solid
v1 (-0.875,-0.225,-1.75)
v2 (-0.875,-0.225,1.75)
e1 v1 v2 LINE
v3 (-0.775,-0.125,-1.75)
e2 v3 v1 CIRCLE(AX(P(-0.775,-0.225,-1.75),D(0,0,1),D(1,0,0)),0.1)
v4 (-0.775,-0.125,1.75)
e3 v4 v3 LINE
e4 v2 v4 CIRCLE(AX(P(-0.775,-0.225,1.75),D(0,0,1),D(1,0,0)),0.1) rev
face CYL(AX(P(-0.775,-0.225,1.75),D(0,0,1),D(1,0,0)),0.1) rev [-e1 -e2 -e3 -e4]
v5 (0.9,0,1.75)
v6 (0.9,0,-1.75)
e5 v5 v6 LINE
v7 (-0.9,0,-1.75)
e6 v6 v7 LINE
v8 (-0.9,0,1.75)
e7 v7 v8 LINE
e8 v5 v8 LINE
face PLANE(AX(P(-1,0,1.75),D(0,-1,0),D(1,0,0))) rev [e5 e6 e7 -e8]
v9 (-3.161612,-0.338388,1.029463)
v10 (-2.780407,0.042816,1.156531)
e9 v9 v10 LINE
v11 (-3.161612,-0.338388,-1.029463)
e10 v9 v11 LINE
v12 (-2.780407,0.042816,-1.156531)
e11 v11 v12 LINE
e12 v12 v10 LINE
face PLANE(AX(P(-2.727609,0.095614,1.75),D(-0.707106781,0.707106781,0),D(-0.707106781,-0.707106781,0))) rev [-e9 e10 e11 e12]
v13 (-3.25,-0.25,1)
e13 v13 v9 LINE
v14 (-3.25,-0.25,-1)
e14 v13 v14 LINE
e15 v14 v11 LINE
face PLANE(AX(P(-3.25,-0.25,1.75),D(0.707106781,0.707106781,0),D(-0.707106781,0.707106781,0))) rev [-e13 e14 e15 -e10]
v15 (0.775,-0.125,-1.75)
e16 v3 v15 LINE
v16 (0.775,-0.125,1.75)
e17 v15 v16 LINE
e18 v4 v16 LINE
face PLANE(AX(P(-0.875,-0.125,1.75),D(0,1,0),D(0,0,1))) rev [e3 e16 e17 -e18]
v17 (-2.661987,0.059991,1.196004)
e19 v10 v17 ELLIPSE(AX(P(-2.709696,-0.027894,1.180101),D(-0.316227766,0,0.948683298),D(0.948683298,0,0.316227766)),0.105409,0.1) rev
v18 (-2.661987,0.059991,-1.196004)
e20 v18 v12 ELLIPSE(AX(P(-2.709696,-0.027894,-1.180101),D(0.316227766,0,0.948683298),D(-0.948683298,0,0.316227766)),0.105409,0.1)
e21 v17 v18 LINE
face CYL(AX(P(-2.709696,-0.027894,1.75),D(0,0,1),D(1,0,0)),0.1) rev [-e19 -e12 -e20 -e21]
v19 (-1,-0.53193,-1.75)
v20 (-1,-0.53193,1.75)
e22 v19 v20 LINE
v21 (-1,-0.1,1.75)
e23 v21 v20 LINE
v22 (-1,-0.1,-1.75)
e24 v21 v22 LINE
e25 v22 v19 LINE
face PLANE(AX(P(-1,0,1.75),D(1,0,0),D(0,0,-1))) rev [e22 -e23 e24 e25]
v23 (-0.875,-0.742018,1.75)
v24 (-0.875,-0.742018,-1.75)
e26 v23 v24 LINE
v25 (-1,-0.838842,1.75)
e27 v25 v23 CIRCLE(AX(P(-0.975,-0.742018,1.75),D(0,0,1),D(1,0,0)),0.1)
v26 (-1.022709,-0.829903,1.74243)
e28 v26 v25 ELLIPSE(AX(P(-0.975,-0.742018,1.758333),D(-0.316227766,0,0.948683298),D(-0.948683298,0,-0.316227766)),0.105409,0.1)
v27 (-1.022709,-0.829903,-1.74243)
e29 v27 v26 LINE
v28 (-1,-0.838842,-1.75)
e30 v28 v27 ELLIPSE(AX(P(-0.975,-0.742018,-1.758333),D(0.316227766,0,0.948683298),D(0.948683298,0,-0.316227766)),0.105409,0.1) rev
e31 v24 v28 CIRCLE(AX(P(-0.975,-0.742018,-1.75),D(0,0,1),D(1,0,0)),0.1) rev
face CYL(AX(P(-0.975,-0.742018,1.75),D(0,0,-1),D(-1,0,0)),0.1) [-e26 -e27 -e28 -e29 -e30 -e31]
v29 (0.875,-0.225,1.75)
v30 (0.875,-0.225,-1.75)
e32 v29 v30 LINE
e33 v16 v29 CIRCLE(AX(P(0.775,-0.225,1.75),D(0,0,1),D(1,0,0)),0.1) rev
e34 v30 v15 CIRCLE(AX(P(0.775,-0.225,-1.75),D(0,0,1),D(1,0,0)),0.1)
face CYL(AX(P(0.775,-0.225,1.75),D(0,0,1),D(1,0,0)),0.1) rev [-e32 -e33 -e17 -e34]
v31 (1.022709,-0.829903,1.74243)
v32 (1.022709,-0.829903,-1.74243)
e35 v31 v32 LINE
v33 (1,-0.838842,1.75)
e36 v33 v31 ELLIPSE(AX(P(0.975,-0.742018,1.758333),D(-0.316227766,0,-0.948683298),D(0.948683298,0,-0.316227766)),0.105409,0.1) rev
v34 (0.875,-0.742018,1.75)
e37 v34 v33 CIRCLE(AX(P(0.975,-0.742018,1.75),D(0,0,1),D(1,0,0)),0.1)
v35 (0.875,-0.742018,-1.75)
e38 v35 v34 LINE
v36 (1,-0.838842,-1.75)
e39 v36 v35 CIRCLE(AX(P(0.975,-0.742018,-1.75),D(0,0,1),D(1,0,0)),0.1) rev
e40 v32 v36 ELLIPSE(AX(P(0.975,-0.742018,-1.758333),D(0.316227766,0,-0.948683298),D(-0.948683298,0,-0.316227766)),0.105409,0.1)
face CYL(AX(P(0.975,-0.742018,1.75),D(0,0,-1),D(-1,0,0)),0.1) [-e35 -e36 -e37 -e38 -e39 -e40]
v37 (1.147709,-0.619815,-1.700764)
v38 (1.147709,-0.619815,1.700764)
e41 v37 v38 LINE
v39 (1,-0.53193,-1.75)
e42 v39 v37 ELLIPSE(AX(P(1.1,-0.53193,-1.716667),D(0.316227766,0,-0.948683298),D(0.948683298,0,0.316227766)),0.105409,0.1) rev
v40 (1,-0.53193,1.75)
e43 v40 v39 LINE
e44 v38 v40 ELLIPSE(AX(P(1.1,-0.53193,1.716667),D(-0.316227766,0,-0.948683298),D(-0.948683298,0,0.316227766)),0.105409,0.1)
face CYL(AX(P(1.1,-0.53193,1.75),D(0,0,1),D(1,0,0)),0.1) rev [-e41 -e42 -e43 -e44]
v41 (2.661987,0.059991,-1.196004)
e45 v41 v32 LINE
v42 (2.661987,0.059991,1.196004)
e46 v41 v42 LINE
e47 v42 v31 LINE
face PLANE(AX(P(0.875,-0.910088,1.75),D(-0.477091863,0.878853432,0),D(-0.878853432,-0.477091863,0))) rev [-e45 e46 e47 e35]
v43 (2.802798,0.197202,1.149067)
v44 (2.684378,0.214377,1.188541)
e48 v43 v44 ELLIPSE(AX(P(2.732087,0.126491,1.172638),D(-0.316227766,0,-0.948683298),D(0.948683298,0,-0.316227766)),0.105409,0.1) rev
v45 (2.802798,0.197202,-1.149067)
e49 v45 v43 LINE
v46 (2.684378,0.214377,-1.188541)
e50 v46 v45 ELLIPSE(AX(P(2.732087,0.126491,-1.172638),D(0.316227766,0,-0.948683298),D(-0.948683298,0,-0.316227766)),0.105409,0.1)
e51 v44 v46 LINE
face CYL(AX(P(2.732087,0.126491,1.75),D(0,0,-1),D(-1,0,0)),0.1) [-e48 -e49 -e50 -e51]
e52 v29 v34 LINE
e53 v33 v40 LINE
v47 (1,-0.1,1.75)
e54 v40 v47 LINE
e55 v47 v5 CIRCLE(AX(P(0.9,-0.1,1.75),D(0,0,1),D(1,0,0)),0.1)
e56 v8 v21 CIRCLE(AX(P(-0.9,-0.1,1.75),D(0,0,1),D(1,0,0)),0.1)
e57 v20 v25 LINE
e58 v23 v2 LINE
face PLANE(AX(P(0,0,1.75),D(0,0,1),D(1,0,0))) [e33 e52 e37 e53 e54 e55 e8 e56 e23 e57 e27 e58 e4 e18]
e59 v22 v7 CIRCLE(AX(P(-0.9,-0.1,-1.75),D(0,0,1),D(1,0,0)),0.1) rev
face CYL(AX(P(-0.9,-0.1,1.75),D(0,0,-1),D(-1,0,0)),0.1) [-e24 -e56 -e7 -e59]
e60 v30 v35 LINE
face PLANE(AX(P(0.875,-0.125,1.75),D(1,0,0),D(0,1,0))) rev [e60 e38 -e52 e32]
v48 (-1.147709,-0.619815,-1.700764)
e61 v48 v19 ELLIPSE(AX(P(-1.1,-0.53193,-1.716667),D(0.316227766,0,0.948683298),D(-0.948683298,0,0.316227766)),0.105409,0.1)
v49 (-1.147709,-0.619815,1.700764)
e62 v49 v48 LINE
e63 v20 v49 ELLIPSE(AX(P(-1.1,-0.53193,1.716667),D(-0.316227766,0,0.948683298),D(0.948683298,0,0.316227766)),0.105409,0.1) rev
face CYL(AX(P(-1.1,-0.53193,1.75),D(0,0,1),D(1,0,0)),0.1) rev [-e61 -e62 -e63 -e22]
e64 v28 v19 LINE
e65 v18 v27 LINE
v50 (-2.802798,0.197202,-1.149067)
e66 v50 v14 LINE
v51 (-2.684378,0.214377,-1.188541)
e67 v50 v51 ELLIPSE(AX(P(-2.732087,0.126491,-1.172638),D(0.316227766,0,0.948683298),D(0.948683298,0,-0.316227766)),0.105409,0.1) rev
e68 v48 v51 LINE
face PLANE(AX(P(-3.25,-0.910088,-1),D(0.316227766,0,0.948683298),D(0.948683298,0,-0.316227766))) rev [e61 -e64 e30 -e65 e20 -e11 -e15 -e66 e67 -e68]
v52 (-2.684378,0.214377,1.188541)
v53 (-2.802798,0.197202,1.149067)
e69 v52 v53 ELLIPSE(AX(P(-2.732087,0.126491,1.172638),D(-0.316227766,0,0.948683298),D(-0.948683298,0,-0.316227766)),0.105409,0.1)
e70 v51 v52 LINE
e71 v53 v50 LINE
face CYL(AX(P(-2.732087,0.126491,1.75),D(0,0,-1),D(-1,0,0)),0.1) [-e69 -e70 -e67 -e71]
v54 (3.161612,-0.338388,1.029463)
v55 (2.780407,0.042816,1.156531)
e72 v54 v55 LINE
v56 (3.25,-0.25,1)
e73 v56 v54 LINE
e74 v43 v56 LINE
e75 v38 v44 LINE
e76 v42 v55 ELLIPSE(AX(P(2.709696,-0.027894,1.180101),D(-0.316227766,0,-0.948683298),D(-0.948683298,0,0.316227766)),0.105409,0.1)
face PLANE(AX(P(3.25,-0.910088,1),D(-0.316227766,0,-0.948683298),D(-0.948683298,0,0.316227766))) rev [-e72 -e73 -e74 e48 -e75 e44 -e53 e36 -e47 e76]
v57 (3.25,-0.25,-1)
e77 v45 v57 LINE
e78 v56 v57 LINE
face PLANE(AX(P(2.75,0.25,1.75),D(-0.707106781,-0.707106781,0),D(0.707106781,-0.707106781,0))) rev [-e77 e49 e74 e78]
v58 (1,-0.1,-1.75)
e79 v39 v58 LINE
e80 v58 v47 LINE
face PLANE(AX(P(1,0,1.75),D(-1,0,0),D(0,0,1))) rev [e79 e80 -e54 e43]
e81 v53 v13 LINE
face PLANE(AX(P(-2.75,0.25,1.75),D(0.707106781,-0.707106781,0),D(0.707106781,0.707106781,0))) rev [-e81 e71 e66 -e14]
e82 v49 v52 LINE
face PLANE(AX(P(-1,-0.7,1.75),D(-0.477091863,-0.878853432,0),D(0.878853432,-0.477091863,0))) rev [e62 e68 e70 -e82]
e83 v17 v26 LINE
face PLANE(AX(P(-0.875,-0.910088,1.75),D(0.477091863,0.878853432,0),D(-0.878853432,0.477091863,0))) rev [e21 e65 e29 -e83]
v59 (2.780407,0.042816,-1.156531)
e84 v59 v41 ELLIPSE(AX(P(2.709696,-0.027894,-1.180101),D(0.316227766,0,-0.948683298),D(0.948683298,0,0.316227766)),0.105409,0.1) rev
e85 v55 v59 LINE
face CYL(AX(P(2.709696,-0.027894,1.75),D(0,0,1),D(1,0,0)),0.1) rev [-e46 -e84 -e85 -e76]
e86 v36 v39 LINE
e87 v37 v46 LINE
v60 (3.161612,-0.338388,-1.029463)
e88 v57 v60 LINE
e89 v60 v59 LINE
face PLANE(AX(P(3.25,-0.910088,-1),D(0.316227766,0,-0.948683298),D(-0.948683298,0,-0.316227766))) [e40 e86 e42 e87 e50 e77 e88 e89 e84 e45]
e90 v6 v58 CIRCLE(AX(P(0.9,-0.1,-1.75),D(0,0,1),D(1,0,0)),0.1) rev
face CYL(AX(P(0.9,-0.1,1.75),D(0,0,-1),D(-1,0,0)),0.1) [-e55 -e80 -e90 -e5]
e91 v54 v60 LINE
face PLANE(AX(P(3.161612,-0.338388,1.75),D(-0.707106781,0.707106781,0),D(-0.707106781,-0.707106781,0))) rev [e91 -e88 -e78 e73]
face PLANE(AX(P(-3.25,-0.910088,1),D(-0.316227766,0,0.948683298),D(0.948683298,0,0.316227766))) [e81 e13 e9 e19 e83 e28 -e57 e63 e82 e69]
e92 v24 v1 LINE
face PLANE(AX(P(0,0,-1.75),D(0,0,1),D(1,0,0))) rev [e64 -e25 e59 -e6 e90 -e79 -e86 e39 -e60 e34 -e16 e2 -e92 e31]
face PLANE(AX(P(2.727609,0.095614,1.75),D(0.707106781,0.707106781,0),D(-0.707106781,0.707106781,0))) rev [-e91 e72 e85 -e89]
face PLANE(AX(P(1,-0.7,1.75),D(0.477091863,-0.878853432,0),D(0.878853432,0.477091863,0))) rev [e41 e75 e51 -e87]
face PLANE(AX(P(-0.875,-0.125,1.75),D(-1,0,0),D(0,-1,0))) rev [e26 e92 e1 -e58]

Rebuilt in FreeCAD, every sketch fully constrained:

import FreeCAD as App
import Part
import Sketcher
from FreeCAD import Vector


def edges_at(feature, points):
    """Names of the edges that pass closest to the given points."""
    edges = feature.Shape.Edges
    near = lambda p: min(range(len(edges)), key=lambda i: edges[i].distToShape(Part.Vertex(*p))[0])
    return sorted({f"Edge{near(p) + 1}" for p in points})


def add_polygon(sketch, points):
    """Adds a closed chain of lines whose ends are joined by coincident constraints."""
    first, n = sketch.GeometryCount, len(points)
    for a, b in zip(points, points[1:] + points[:1]):
        sketch.addGeometry(Part.LineSegment(App.Vector(*a, 0), App.Vector(*b, 0)), False)
    for i in range(n):
        sketch.addConstraint(Sketcher.Constraint("Coincident", first + i, 2, first + (i + 1) % n, 1))

doc = App.newDocument("Part")
body = doc.addObject("PartDesign::Body", "Body")

# Sketch on XY plane
sketch1 = body.newObject("Sketcher::SketchObject", "Sketch")
sketch1.AttachmentSupport = (doc.getObject("XY_Plane"), [""])
sketch1.MapMode = "FlatFace"
add_polygon(sketch1, [(1, 0), (-1, 0), (-1, -0.7), (-2.75, 0.25), (-3.25, -0.25), (-3.16, -0.34), (-2.73, 0.1), (-0.88, -0.91), (-0.88, -0.12), (0.88, -0.12), (0.88, -0.91), (2.73, 0.1), (3.16, -0.34), (3.25, -0.25), (2.75, 0.25), (1, -0.7)])  # lines 0-15
sketch1.addConstraint(Sketcher.Constraint("Horizontal", 0))
sketch1.addConstraint(Sketcher.Constraint("Vertical", 1))
sketch1.addConstraint(Sketcher.Constraint("Vertical", 7))
sketch1.addConstraint(Sketcher.Constraint("Horizontal", 8))
sketch1.addConstraint(Sketcher.Constraint("Vertical", 9))
sketch1.addConstraint(Sketcher.Constraint("Vertical", 15))
sketch1.addConstraint(Sketcher.Constraint("Symmetric", 0, 2, 15, 2, -1, 1))
sketch1.addConstraint(Sketcher.Constraint("Symmetric", 6, 2, 9, 2, -2))
sketch1.addConstraint(Sketcher.Constraint("Symmetric", 5, 2, 10, 2, -2))
sketch1.addConstraint(Sketcher.Constraint("Symmetric", 4, 2, 11, 2, -2))
sketch1.addConstraint(Sketcher.Constraint("Symmetric", 3, 2, 12, 2, -2))
sketch1.addConstraint(Sketcher.Constraint("Symmetric", 2, 2, 13, 2, -2))
sketch1.addConstraint(Sketcher.Constraint("Perpendicular", 3, 4))
sketch1.addConstraint(Sketcher.Constraint("Perpendicular", 4, 5))
sketch1.addConstraint(Sketcher.Constraint("Parallel", 2, 6))
sketch1.addConstraint(Sketcher.Constraint("Perpendicular", 5, 11))
sketch1.addConstraint(Sketcher.Constraint("Parallel", 10, 14))
sketch1.addConstraint(Sketcher.Constraint("DistanceX", 0, 2, 0, 1, 2.0))
sketch1.addConstraint(Sketcher.Constraint("DistanceY", 1, 2, 1, 1, 0.7))
sketch1.addConstraint(Sketcher.Constraint("DistanceX", 8, 1, 8, 2, 1.75))
sketch1.addConstraint(Sketcher.Constraint("DistanceX", 3, 2, 2, 2, 0.5))
sketch1.addConstraint(Sketcher.Constraint("DistanceX", 2, 2, -1, 1, 2.75))
sketch1.addConstraint(Sketcher.Constraint("DistanceY", -1, 1, 2, 2, 0.25))
sketch1.addConstraint(Sketcher.Constraint("Distance", 4, 0.125))
sketch1.addConstraint(Sketcher.Constraint("DistanceY", 7, 2, -1, 1, 0.125))
sketch1.addConstraint(Sketcher.Constraint("DistanceY", 6, 2, 4, 2, 0.5717))
pad1 = body.newObject("PartDesign::Pad", "Pad")
pad1.Profile = sketch1
pad1.Length = 3.5
pad1.Midplane = True

# Sketch on XZ plane
sketch2 = body.newObject("Sketcher::SketchObject", "Sketch001")
sketch2.AttachmentSupport = (doc.getObject("XZ_Plane"), [""])
sketch2.MapMode = "FlatFace"
add_polygon(sketch2, [(-3.2, -1), (-1, -1.8), (-3.2, -1.8)])  # lines 0-2
sketch2.addConstraint(Sketcher.Constraint("Horizontal", 1))
sketch2.addConstraint(Sketcher.Constraint("Vertical", 2))
sketch2.addConstraint(Sketcher.Constraint("DistanceX", 0, 2, -1, 1, 1.0))
sketch2.addConstraint(Sketcher.Constraint("DistanceY", 2, 2, -1, 1, 1.0))
sketch2.addConstraint(Sketcher.Constraint("DistanceX", 1, 2, 1, 1, 2.25))
sketch2.addConstraint(Sketcher.Constraint("DistanceY", 2, 1, 2, 2, 0.75))
pocket1 = body.newObject("PartDesign::Pocket", "Pocket")
pocket1.Profile = sketch2
pocket1.Length = 9.603489
pocket1.Midplane = True
doc.recompute()

mirrored = body.newObject("PartDesign::Mirrored", "Mirrored")
mirrored.Originals = [pocket1]
mirrored.MirrorPlane = (doc.getObject("XY_Plane"), [""])
body.Tip = mirrored
doc.recompute()

mirrored2 = body.newObject("PartDesign::Mirrored", "Mirrored001")
mirrored2.Originals = [pocket1]
mirrored2.MirrorPlane = (doc.getObject("YZ_Plane"), [""])
body.Tip = mirrored2

# Sketch on XZ plane
sketch3 = body.newObject("Sketcher::SketchObject", "Sketch002")
sketch3.AttachmentSupport = (doc.getObject("XZ_Plane"), [""])
sketch3.MapMode = "FlatFace"
add_polygon(sketch3, [(3.2, 1), (1, 1.8), (3.2, 1.8)])  # lines 0-2
sketch3.addConstraint(Sketcher.Constraint("Horizontal", 1))
sketch3.addConstraint(Sketcher.Constraint("Vertical", 2))
sketch3.addConstraint(Sketcher.Constraint("DistanceX", -1, 1, 0, 2, 1.0))
sketch3.addConstraint(Sketcher.Constraint("DistanceY", -1, 1, 2, 2, 1.0))
sketch3.addConstraint(Sketcher.Constraint("DistanceX", 1, 1, 1, 2, 2.25))
sketch3.addConstraint(Sketcher.Constraint("DistanceY", 2, 2, 2, 1, 0.75))
pocket2 = body.newObject("PartDesign::Pocket", "Pocket001")
pocket2.Profile = sketch3
pocket2.Length = 9.603489
pocket2.Midplane = True
doc.recompute()

fillet = body.newObject("PartDesign::Fillet", "Fillet")
fillet.Base = (pocket2, edges_at(pocket2, [
    (1, 0, 0),
    (-1, 0, 0),
    (0.875, -0.125, 0),
    (-0.875, -0.125, 0),
    (0.875, -0.91, 0),
    (-0.875, -0.91, 0),
    (2.728, 0.096, 0),
    (-2.728, 0.096, 0),
    (2.75, 0.25, 0),
    (-2.75, 0.25, 0),
    (1, -0.7, 0),
    (-1, -0.7, 0),
]))
fillet.Radius = 0.1

doc.recompute()
